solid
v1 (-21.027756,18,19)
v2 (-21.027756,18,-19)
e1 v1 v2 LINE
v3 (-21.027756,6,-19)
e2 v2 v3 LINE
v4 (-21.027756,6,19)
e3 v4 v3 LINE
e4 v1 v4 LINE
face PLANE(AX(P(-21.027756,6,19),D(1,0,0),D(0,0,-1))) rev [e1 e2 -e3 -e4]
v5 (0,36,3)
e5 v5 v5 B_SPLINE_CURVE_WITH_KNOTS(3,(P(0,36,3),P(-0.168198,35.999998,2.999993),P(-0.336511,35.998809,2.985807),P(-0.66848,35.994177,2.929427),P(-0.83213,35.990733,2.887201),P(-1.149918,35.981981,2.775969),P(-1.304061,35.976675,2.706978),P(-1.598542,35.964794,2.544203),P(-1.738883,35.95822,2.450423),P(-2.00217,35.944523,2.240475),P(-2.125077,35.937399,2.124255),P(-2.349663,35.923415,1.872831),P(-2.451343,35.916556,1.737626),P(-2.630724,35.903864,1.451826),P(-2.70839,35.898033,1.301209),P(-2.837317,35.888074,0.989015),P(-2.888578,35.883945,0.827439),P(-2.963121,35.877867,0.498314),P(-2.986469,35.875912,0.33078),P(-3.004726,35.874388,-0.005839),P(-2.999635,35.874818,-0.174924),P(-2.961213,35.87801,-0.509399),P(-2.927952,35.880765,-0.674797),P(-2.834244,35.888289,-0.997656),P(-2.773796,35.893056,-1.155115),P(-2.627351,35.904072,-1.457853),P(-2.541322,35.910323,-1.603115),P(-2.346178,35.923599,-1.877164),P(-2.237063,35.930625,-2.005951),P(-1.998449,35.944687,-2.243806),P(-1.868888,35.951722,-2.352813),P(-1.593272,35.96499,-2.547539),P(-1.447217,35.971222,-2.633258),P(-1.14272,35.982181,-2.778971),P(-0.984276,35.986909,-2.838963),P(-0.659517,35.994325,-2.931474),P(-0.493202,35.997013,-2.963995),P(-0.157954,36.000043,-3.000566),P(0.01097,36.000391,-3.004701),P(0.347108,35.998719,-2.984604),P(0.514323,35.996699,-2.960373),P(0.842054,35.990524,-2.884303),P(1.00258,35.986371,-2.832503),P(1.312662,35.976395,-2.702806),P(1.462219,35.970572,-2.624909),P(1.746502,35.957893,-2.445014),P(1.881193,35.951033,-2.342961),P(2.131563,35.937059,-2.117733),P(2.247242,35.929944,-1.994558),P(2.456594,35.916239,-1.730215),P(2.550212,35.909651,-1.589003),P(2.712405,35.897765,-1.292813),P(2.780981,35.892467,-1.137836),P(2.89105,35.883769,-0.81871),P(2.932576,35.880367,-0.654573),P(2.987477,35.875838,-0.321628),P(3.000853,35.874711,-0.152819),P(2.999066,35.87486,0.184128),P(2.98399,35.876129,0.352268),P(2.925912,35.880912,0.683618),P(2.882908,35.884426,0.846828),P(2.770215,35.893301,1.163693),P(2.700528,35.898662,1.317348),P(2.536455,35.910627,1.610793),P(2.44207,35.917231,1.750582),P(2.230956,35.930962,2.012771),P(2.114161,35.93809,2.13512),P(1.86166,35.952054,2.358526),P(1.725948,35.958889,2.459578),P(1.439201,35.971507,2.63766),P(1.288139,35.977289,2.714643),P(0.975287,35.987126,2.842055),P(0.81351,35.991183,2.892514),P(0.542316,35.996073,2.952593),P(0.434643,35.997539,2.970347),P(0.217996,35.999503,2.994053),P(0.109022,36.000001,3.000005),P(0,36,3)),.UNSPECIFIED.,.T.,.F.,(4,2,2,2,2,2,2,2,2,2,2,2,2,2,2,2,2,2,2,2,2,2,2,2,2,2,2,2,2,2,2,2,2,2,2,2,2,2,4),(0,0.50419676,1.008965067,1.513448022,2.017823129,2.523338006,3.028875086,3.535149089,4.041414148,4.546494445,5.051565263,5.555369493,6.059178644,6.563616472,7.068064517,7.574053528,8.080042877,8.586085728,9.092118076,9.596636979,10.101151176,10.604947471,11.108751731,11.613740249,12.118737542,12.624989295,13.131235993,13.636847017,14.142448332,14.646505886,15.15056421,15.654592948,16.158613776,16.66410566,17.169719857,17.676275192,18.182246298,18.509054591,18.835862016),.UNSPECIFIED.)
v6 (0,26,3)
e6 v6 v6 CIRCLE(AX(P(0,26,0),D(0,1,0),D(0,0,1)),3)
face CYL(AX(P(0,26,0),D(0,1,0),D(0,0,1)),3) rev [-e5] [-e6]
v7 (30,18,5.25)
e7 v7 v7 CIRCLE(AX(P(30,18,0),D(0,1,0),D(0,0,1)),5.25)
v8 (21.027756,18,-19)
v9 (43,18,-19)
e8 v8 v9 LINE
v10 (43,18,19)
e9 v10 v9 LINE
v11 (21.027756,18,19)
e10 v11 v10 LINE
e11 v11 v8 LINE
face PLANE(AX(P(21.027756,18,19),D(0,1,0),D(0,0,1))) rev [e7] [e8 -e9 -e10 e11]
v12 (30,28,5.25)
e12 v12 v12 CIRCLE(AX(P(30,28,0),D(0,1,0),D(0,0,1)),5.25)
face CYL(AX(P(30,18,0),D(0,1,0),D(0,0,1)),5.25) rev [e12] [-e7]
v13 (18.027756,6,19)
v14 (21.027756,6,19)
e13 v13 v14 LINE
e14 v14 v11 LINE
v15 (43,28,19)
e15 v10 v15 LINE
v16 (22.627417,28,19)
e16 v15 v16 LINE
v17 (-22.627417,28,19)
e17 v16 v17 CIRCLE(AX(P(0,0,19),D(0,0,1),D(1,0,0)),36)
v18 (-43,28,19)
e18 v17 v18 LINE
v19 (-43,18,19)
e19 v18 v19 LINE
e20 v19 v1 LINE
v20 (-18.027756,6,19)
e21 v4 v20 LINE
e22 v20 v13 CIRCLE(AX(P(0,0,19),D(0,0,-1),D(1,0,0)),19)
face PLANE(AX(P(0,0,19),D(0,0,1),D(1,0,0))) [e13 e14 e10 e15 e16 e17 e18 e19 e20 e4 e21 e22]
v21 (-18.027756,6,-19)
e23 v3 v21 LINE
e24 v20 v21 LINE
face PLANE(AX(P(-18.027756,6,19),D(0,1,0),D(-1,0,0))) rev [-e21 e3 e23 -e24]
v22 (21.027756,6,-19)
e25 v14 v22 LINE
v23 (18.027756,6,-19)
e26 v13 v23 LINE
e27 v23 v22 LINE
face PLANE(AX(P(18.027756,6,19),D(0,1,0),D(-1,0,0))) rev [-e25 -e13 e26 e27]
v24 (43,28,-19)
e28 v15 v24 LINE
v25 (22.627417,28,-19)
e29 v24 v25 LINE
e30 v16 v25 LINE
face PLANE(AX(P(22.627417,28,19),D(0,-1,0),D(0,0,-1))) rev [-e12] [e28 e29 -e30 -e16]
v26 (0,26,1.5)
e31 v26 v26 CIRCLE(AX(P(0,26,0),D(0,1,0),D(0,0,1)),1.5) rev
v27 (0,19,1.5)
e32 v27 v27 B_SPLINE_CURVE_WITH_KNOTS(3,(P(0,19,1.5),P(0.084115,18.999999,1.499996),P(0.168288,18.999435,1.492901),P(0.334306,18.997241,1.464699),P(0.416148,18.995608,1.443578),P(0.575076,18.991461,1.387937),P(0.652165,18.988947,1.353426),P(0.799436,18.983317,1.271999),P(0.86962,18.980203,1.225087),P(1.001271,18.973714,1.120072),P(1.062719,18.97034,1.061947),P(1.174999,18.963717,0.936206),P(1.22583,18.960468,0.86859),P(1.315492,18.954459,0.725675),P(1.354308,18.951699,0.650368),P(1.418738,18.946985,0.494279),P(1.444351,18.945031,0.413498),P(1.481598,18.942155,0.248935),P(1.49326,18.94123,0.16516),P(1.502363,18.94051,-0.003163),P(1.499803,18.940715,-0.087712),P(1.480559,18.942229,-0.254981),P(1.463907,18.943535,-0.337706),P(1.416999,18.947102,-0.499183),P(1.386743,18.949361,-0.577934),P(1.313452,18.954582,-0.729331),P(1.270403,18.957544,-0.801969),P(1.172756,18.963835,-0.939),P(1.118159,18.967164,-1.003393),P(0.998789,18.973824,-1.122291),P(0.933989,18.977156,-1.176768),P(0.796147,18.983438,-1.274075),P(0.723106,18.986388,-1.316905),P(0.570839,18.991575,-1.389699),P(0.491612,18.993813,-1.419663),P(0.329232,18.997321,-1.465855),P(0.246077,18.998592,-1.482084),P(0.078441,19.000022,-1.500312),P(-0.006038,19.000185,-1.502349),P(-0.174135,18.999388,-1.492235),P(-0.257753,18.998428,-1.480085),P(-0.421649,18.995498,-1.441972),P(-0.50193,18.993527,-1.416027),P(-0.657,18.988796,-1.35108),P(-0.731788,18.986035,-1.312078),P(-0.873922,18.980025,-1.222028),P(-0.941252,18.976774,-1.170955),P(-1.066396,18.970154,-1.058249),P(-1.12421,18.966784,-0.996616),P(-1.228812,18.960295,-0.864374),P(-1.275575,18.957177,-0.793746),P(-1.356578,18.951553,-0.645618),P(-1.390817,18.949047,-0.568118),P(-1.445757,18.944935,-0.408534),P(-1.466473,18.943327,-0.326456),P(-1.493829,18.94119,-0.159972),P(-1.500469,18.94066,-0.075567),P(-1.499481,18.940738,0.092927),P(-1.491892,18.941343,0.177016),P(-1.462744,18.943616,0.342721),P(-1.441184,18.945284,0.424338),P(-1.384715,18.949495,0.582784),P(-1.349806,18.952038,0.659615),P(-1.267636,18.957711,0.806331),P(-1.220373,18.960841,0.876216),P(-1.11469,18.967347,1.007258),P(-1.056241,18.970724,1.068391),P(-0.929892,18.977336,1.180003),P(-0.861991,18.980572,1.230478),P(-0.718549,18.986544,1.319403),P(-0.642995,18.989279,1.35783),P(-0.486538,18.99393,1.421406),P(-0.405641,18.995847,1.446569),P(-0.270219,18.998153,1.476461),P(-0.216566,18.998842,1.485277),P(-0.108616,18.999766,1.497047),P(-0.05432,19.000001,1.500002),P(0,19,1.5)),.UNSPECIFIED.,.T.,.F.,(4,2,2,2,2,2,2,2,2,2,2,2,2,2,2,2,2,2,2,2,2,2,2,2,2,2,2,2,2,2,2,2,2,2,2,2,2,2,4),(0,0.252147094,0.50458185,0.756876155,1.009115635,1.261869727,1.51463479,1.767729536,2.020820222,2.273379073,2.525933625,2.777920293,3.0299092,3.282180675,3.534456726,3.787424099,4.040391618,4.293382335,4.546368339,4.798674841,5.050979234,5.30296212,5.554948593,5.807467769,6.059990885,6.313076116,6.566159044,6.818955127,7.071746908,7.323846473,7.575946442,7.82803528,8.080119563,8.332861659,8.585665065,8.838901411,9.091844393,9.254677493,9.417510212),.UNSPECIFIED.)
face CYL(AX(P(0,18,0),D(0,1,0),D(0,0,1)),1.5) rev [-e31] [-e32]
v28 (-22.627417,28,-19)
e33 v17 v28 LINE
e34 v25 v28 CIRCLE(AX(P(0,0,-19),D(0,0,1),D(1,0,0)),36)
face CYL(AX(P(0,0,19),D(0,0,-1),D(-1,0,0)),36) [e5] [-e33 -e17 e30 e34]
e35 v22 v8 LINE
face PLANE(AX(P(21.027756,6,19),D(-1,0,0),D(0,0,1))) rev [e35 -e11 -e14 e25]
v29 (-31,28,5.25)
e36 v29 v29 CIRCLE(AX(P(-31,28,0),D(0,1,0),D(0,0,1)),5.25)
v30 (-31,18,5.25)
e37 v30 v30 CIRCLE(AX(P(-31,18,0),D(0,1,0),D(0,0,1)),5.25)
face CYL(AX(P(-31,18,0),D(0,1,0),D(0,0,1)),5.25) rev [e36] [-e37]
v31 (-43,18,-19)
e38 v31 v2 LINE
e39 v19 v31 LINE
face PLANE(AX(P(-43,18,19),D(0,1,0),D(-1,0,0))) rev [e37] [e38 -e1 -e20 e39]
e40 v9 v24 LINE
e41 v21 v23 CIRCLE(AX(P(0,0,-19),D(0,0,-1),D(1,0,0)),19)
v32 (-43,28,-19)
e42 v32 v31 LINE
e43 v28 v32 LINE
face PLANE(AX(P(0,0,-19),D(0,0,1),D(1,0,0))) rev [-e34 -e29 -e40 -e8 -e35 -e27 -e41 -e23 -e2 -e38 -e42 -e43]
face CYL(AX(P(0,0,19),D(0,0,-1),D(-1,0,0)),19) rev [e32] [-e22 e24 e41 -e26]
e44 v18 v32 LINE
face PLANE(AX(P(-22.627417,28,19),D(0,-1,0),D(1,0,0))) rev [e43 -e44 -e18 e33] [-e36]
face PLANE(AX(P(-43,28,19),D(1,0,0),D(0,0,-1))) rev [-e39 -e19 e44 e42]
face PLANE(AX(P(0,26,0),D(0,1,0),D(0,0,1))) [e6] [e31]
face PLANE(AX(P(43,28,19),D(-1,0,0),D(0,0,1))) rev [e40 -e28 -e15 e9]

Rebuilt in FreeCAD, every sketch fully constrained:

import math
import FreeCAD as App
import Part
import Sketcher
from FreeCAD import Vector

doc = App.newDocument("Part")
body = doc.addObject("PartDesign::Body", "Body")

sketch1 = body.newObject("Sketcher::SketchObject", "Sketch")
sketch1.AttachmentSupport = (doc.getObject("XY_Plane"), [""])
sketch1.MapMode = "FlatFace"
sketch1.addGeometry(Part.LineSegment(Vector(21.027756, 6, 0), Vector(21.027756, 18, 0)), False)
sketch1.addGeometry(Part.LineSegment(Vector(21.027756, 18, 0), Vector(43, 18, 0)), False)
sketch1.addGeometry(Part.LineSegment(Vector(43, 18, 0), Vector(43, 28, 0)), False)
sketch1.addGeometry(Part.LineSegment(Vector(43, 28, 0), Vector(22.627417, 28, 0)), False)
sketch1.addGeometry(Part.ArcOfCircle(Part.Circle(Vector(0, 0, 0), Vector(0, 0, 1), 36), math.radians(51.057559), math.radians(128.942441)), False)
sketch1.addGeometry(Part.LineSegment(Vector(-22.627417, 28, 0), Vector(-43, 28, 0)), False)
sketch1.addGeometry(Part.LineSegment(Vector(-43, 28, 0), Vector(-43, 18, 0)), False)
sketch1.addGeometry(Part.LineSegment(Vector(-43, 18, 0), Vector(-21.027756, 18, 0)), False)
sketch1.addGeometry(Part.LineSegment(Vector(-21.027756, 18, 0), Vector(-21.027756, 6, 0)), False)
sketch1.addGeometry(Part.LineSegment(Vector(-21.027756, 6, 0), Vector(-18.027756, 6, 0)), False)
sketch1.addGeometry(Part.ArcOfCircle(Part.Circle(Vector(0, 0, 0), Vector(0, 0, 1), 19), math.radians(18.40848), math.radians(161.59152)), False)
sketch1.addGeometry(Part.LineSegment(Vector(18.027756, 6, 0), Vector(21.027756, 6, 0)), False)
sketch1.addConstraint(Sketcher.Constraint("Coincident", 0, 2, 1, 1))
sketch1.addConstraint(Sketcher.Constraint("Coincident", 1, 2, 2, 1))
sketch1.addConstraint(Sketcher.Constraint("Coincident", 2, 2, 3, 1))
sketch1.addConstraint(Sketcher.Constraint("Coincident", 3, 2, 4, 1))
sketch1.addConstraint(Sketcher.Constraint("Coincident", 4, 2, 5, 1))
sketch1.addConstraint(Sketcher.Constraint("Coincident", 5, 2, 6, 1))
sketch1.addConstraint(Sketcher.Constraint("Coincident", 6, 2, 7, 1))
sketch1.addConstraint(Sketcher.Constraint("Coincident", 7, 2, 8, 1))
sketch1.addConstraint(Sketcher.Constraint("Coincident", 8, 2, 9, 1))
sketch1.addConstraint(Sketcher.Constraint("Coincident", 9, 2, 10, 2))
sketch1.addConstraint(Sketcher.Constraint("Coincident", 10, 1, 11, 1))
sketch1.addConstraint(Sketcher.Constraint("Coincident", 11, 2, 0, 1))
sketch1.addConstraint(Sketcher.Constraint("Vertical", 0))
sketch1.addConstraint(Sketcher.Constraint("Horizontal", 1))
sketch1.addConstraint(Sketcher.Constraint("Vertical", 2))
sketch1.addConstraint(Sketcher.Constraint("Horizontal", 3))
sketch1.addConstraint(Sketcher.Constraint("Horizontal", 5))
sketch1.addConstraint(Sketcher.Constraint("Vertical", 6))
sketch1.addConstraint(Sketcher.Constraint("Horizontal", 7))
sketch1.addConstraint(Sketcher.Constraint("Vertical", 8))
sketch1.addConstraint(Sketcher.Constraint("Horizontal", 9))
sketch1.addConstraint(Sketcher.Constraint("Horizontal", 11))
sketch1.addConstraint(Sketcher.Constraint("Coincident", 4, 3, -1, 1))
sketch1.addConstraint(Sketcher.Constraint("Coincident", 10, 3, -1, 1))
sketch1.addConstraint(Sketcher.Constraint("Symmetric", 2, 2, 5, 2, -2))
sketch1.addConstraint(Sketcher.Constraint("Symmetric", 0, 2, 7, 2, -2))
sketch1.addConstraint(Sketcher.Constraint("Horizontal", 9, 2, 10, 1))
sketch1.addConstraint(Sketcher.Constraint("Radius", 4, 36.0))
sketch1.addConstraint(Sketcher.Constraint("Radius", 10, 19.0))
sketch1.addConstraint(Sketcher.Constraint("DistanceX", 9, 1, 9, 2, 3.0))
sketch1.addConstraint(Sketcher.Constraint("DistanceY", 0, 1, 0, 2, 12.0))
sketch1.addConstraint(Sketcher.Constraint("DistanceY", 2, 1, 2, 2, 10.0))
sketch1.addConstraint(Sketcher.Constraint("DistanceY", -1, 1, 0, 2, 18.0))
sketch1.addConstraint(Sketcher.Constraint("DistanceX", -1, 1, 1, 2, 43.0))
pad1 = body.newObject("PartDesign::Pad", "Pad")
pad1.Profile = sketch1
pad1.Length = 38
pad1.Midplane = True

sketch2 = body.newObject("Sketcher::SketchObject", "Sketch001")
sketch2.AttachmentSupport = (doc.getObject("XZ_Plane"), [""])
sketch2.MapMode = "FlatFace"
sketch2.AttachmentOffset = App.Placement(Vector(0, 0, -36), App.Rotation())
sketch2.addGeometry(Part.Circle(Vector(0, 0, 0), Vector(0, 0, 1), 1.5), False)
sketch2.addConstraint(Sketcher.Constraint("Coincident", 0, 3, -1, 1))
sketch2.addConstraint(Sketcher.Constraint("Diameter", 0, 3.0))
pocket1 = body.newObject("PartDesign::Pocket", "Pocket")
pocket1.Profile = sketch2
pocket1.Length = 18
pocket1.Reversed = True

sketch3 = body.newObject("Sketcher::SketchObject", "Sketch002")
sketch3.AttachmentSupport = (doc.getObject("XZ_Plane"), [""])
sketch3.MapMode = "FlatFace"
sketch3.AttachmentOffset = App.Placement(Vector(0, 0, -28), App.Rotation())
sketch3.addGeometry(Part.Circle(Vector(30, 0, 0), Vector(0, 0, 1), 5.25), False)
sketch3.addGeometry(Part.Circle(Vector(-31, 0, 0), Vector(0, 0, 1), 5.25), False)
sketch3.addConstraint(Sketcher.Constraint("Equal", 0, 1))
sketch3.addConstraint(Sketcher.Constraint("PointOnObject", 0, 3, -1))
sketch3.addConstraint(Sketcher.Constraint("PointOnObject", 1, 3, -1))
sketch3.addConstraint(Sketcher.Constraint("Diameter", 0, 10.5))
sketch3.addConstraint(Sketcher.Constraint("DistanceX", -1, 1, 0, 3, 30.0))
sketch3.addConstraint(Sketcher.Constraint("DistanceX", 1, 3, -1, 1, 31.0))
pocket2 = body.newObject("PartDesign::Pocket", "Pocket001")
pocket2.Profile = sketch3
pocket2.Length = 10
pocket2.Reversed = True

sketch4 = body.newObject("Sketcher::SketchObject", "Sketch003")
sketch4.AttachmentSupport = (doc.getObject("XZ_Plane"), [""])
sketch4.MapMode = "FlatFace"
sketch4.AttachmentOffset = App.Placement(Vector(0, 0, -36), App.Rotation())
sketch4.addGeometry(Part.Circle(Vector(0, 0, 0), Vector(0, 0, 1), 3), False)
sketch4.addConstraint(Sketcher.Constraint("Coincident", 0, 3, -1, 1))
sketch4.addConstraint(Sketcher.Constraint("Diameter", 0, 6.0))
pocket3 = body.newObject("PartDesign::Pocket", "Pocket002")
pocket3.Profile = sketch4
pocket3.Length = 10
pocket3.Reversed = True

doc.recompute()
